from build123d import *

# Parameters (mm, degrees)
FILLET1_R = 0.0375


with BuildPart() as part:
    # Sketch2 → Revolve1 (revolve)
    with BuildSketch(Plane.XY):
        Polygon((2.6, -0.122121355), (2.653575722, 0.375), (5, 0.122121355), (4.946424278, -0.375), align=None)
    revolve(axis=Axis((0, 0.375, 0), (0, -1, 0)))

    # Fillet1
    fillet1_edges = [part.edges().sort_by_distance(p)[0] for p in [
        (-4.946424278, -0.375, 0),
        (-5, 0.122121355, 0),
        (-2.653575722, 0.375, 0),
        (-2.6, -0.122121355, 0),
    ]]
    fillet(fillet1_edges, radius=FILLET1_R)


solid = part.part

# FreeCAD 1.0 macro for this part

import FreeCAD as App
import Part
import Sketcher


def edges_at(feature, points):
    """Names of the edges that pass closest to the given points."""
    edges = feature.Shape.Edges
    near = lambda p: min(range(len(edges)), key=lambda i: edges[i].distToShape(Part.Vertex(*p))[0])
    return sorted({f"Edge{near(p) + 1}" for p in points})

doc = App.newDocument("Part")
body = doc.addObject("PartDesign::Body", "Body")

sketch1 = doc.addObject("Sketcher::SketchObject", "Sketch")
body.addObject(sketch1)
sketch1.AttachmentSupport = (doc.XY_Plane, [""])
sketch1.MapMode = "FlatFace"
sketch1.addGeometry([
    Part.LineSegment(App.Vector(2.65, 0.38, 0), App.Vector(2.6, -0.12, 0)),
    Part.LineSegment(App.Vector(2.6, -0.12, 0), App.Vector(4.95, -0.38, 0)),
    Part.LineSegment(App.Vector(4.95, -0.38, 0), App.Vector(5, 0.12, 0)),
    Part.LineSegment(App.Vector(5, 0.12, 0), App.Vector(2.65, 0.38, 0)),
], False)
sketch1.addConstraint([
    Sketcher.Constraint("Coincident", 0, 2, 1, 1),
    Sketcher.Constraint("Coincident", 1, 2, 2, 1),
    Sketcher.Constraint("Coincident", 2, 2, 3, 1),
    Sketcher.Constraint("Coincident", 3, 2, 0, 1),
    Sketcher.Constraint("Perpendicular", 0, 1),
    Sketcher.Constraint("Perpendicular", 1, 2),
    Sketcher.Constraint("Perpendicular", 2, 3),
    Sketcher.Constraint("DistanceX", -1, 1, 2, 2, 5.0),
    Sketcher.Constraint("Distance", 0, 0.5),
    Sketcher.Constraint("DistanceX", -1, 1, 0, 2, 2.6),
    Sketcher.Constraint("DistanceY", 1, 2, 3, 2, 0.75),
    Sketcher.Constraint("DistanceY", 1, 2, -1, 1, 0.375),
])
revolution = doc.addObject("PartDesign::Revolution", "Revolution")
body.addObject(revolution)
revolution.Profile = sketch1
revolution.ReferenceAxis = (sketch1, ["V_Axis"])
revolution.Angle = 360
doc.recompute()

fillet = doc.addObject("PartDesign::Fillet", "Fillet")
body.addObject(fillet)
fillet.Base = (revolution, edges_at(revolution, [
    (-4.946, -0.375, 0),
    (-5, 0.122, 0),
    (-2.654, 0.375, 0),
    (-2.6, -0.122, 0),
]))
fillet.Radius = 0.0375

doc.recompute()
